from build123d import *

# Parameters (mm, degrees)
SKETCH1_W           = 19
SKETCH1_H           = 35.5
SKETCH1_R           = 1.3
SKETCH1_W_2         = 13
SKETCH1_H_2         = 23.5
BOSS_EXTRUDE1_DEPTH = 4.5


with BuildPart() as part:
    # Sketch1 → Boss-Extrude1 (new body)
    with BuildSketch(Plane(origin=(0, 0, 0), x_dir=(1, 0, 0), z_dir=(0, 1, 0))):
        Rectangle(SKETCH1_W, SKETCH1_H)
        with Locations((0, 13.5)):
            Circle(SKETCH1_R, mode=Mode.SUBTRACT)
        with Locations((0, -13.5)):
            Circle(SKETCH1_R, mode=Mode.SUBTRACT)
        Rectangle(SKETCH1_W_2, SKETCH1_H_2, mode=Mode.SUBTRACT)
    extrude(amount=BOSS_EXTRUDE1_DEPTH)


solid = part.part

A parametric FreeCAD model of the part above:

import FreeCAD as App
import Part
import Sketcher

doc = App.newDocument("Part")
body = doc.addObject("PartDesign::Body", "Body")

sketch1 = body.newObject("Sketcher::SketchObject", "Sketch")
sketch1.AttachmentSupport = (doc.getObject("XZ_Plane"), [""])
sketch1.MapMode = "FlatFace"
sketch1.addGeometry([
    Part.LineSegment(App.Vector(-9.5, -17.8, 0), App.Vector(-9.5, 17.8, 0)),
    Part.LineSegment(App.Vector(-9.5, 17.8, 0), App.Vector(9.5, 17.8, 0)),
    Part.LineSegment(App.Vector(9.5, 17.8, 0), App.Vector(9.5, -17.8, 0)),
    Part.LineSegment(App.Vector(9.5, -17.8, 0), App.Vector(-9.5, -17.8, 0)),
    Part.Circle(App.Vector(0, 13.5, 0), App.Vector(0, 0, 1), 1.3),
    Part.LineSegment(App.Vector(6.5, 11.8, 0), App.Vector(-6.5, 11.8, 0)),
    Part.LineSegment(App.Vector(-6.5, 11.8, 0), App.Vector(-6.5, -11.8, 0)),
    Part.LineSegment(App.Vector(-6.5, -11.8, 0), App.Vector(6.5, -11.8, 0)),
    Part.LineSegment(App.Vector(6.5, -11.8, 0), App.Vector(6.5, 11.8, 0)),
    Part.Circle(App.Vector(0, -13.5, 0), App.Vector(0, 0, 1), 1.3),
], False)
sketch1.addConstraint([
    Sketcher.Constraint("Coincident", 0, 2, 1, 1),
    Sketcher.Constraint("Coincident", 1, 2, 2, 1),
    Sketcher.Constraint("Coincident", 2, 2, 3, 1),
    Sketcher.Constraint("Coincident", 3, 2, 0, 1),
    Sketcher.Constraint("Coincident", 5, 2, 6, 1),
    Sketcher.Constraint("Coincident", 6, 2, 7, 1),
    Sketcher.Constraint("Coincident", 7, 2, 8, 1),
    Sketcher.Constraint("Coincident", 8, 2, 5, 1),
    Sketcher.Constraint("Vertical", 0),
    Sketcher.Constraint("Horizontal", 1),
    Sketcher.Constraint("Vertical", 2),
    Sketcher.Constraint("Horizontal", 3),
    Sketcher.Constraint("Horizontal", 5),
    Sketcher.Constraint("Vertical", 6),
    Sketcher.Constraint("Horizontal", 7),
    Sketcher.Constraint("Vertical", 8),
    Sketcher.Constraint("Equal", 4, 9),
    Sketcher.Constraint("Symmetric", 4, 3, 9, 3, -1, 1),
    Sketcher.Constraint("Symmetric", 0, 2, 2, 2, -1, 1),
    Sketcher.Constraint("Symmetric", 5, 2, 7, 2, -1, 1),
    Sketcher.Constraint("PointOnObject", 4, 3, -2),
    Sketcher.Constraint("Diameter", 4, 2.6),
    Sketcher.Constraint("DistanceX", 1, 1, 1, 2, 19.0),
    Sketcher.Constraint("DistanceX", 5, 2, 5, 1, 13.0),
    Sketcher.Constraint("DistanceY", 0, 1, 0, 2, 35.5),
    Sketcher.Constraint("DistanceY", 6, 2, 6, 1, 23.5),
    Sketcher.Constraint("DistanceY", 9, 3, 4, 3, 27.0),
])
pad1 = body.newObject("PartDesign::Pad", "Pad")
pad1.Profile = sketch1
pad1.Length = 4.5
pad1.Reversed = True

doc.recompute()
